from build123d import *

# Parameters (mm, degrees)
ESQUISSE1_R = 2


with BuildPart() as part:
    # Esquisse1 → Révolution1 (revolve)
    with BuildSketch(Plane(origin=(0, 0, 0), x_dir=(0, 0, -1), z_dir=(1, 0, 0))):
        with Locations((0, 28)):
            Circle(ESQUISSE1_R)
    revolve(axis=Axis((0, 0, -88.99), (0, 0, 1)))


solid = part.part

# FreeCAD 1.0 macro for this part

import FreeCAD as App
import Part
import Sketcher

V = App.Vector

doc = App.newDocument("Part")
params = doc.addObject("Spreadsheet::Sheet", "Params")
for row, (alias, value) in enumerate([
    ("sketch1_diameter", "4 mm"),
    ("revolution_angle", "360 deg"),
], start=1):
    params.set(f"A{row}", alias)
    params.set(f"B{row}", "=" + value)
    params.setAlias(f"B{row}", alias)

body = doc.addObject("PartDesign::Body", "Body")

# Sketch on YZ plane
sketch1 = doc.addObject("Sketcher::SketchObject", "Sketch")
body.addObject(sketch1)
sketch1.AttachmentSupport = (doc.YZ_Plane, [""])
sketch1.MapMode = "FlatFace"
sketch1.addGeometry(Part.Circle(V(28, 0, 0), V(0, 0, 1), 2), False)
sketch1.addConstraint([
    Sketcher.Constraint("PointOnObject", 0, 3, -1),
    Sketcher.Constraint("Diameter", 0, 4.0),
    Sketcher.Constraint("DistanceX", -1, 1, 0, 3, 28.0),
])
sketch1.setExpression("Constraints[1]", "Params.sketch1_diameter")
revolution = doc.addObject("PartDesign::Revolution", "Revolution")
body.addObject(revolution)
revolution.Profile = sketch1
revolution.ReferenceAxis = (sketch1, ["V_Axis"])
revolution.setExpression("Angle", "Params.revolution_angle")

doc.recompute()
